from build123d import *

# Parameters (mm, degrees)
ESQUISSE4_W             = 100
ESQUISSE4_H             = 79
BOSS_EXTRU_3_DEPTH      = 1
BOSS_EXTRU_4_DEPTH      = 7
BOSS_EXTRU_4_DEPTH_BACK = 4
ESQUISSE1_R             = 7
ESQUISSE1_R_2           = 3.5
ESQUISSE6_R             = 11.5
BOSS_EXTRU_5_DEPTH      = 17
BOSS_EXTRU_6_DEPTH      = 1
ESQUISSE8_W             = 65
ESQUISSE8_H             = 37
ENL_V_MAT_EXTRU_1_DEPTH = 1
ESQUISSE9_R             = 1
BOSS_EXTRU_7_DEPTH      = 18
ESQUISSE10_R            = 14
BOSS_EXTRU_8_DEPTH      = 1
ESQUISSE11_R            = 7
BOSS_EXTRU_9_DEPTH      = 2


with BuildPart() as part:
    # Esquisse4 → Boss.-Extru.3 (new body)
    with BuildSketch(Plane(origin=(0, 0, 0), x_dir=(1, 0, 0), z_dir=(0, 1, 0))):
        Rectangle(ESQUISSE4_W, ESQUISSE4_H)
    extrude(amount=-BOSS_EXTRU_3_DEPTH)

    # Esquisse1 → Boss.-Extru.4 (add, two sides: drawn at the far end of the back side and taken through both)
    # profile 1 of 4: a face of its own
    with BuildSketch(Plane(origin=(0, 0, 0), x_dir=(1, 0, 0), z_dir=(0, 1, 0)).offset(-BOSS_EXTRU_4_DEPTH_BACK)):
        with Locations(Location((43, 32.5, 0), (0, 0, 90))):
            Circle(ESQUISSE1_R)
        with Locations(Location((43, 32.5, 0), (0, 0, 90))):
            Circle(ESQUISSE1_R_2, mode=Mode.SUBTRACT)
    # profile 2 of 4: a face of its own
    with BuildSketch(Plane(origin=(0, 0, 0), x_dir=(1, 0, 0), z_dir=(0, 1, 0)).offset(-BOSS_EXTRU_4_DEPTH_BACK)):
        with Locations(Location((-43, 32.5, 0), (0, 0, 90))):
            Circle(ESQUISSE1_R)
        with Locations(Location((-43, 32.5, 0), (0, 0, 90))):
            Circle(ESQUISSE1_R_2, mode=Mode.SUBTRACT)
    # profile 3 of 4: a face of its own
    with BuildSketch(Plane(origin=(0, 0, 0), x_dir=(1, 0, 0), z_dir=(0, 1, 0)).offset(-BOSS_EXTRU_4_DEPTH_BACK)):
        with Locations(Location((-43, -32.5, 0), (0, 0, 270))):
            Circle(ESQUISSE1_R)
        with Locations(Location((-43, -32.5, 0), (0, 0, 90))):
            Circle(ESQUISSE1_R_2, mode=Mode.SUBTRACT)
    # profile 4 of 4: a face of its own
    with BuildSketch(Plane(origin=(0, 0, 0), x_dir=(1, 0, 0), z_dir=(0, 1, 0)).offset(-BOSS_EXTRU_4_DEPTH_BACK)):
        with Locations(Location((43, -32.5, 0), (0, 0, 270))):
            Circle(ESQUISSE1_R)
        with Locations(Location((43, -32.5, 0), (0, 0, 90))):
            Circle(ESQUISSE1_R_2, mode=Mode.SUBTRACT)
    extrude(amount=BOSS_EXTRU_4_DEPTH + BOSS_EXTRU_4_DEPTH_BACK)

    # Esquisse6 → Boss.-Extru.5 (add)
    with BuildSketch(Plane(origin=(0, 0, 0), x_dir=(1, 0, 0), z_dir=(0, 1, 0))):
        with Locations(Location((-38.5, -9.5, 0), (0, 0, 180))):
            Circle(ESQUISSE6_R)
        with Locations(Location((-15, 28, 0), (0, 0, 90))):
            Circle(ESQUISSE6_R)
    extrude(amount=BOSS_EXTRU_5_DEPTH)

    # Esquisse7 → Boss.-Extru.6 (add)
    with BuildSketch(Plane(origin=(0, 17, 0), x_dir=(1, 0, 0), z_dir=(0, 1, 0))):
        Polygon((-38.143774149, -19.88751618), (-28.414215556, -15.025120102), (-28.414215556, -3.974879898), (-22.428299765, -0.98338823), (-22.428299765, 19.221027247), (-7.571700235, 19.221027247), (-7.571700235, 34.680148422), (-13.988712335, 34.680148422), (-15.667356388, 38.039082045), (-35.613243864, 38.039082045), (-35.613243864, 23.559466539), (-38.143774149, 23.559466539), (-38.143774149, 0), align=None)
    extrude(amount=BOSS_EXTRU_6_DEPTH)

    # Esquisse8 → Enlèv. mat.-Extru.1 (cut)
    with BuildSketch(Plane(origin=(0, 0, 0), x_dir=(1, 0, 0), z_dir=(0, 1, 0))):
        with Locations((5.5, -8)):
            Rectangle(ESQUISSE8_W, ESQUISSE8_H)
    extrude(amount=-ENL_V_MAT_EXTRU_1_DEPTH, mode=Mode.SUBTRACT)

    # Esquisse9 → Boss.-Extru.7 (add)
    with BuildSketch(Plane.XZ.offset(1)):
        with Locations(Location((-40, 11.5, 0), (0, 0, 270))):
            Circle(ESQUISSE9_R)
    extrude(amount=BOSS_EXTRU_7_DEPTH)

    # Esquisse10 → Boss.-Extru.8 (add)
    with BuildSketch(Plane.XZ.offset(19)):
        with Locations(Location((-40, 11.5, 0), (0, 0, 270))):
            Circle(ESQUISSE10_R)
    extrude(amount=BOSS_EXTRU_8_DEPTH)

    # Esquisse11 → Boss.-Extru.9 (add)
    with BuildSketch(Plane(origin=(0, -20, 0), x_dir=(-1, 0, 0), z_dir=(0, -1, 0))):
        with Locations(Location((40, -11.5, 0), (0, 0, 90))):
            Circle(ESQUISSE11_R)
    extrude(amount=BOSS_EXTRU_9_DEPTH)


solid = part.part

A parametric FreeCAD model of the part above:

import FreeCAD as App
import Part
import Sketcher
from FreeCAD import Vector


def add_polygon(sketch, points):
    """Adds a closed chain of lines whose ends are joined by coincident constraints."""
    first, n = sketch.GeometryCount, len(points)
    for a, b in zip(points, points[1:] + points[:1]):
        sketch.addGeometry(Part.LineSegment(App.Vector(*a, 0), App.Vector(*b, 0)), False)
    for i in range(n):
        sketch.addConstraint(Sketcher.Constraint("Coincident", first + i, 2, first + (i + 1) % n, 1))

doc = App.newDocument("Part")
body = doc.addObject("PartDesign::Body", "Body")

sketch1 = body.newObject("Sketcher::SketchObject", "Sketch")
sketch1.AttachmentSupport = (doc.getObject("XZ_Plane"), [""])
sketch1.MapMode = "FlatFace"
add_polygon(sketch1, [(-50, -40), (-50, 40), (50, 40), (50, -40)])
sketch1.addConstraint(Sketcher.Constraint("Vertical", 0))
sketch1.addConstraint(Sketcher.Constraint("Horizontal", 1))
sketch1.addConstraint(Sketcher.Constraint("Vertical", 2))
sketch1.addConstraint(Sketcher.Constraint("Horizontal", 3))
sketch1.addConstraint(Sketcher.Constraint("Symmetric", 0, 2, 2, 2, -1, 1))
sketch1.addConstraint(Sketcher.Constraint("DistanceX", 1, 1, 1, 2, 100.0))
sketch1.addConstraint(Sketcher.Constraint("DistanceY", 0, 1, 0, 2, 79.0))
pad1 = body.newObject("PartDesign::Pad", "Pad")
pad1.Profile = sketch1
pad1.Length = 1

sketch2 = body.newObject("Sketcher::SketchObject", "Sketch001")
sketch2.AttachmentSupport = (doc.getObject("XZ_Plane"), [""])
sketch2.MapMode = "FlatFace"
sketch2.addGeometry(Part.Circle(Vector(43, -32.5, 0), Vector(0, 0, 1), 7), False)
sketch2.addGeometry(Part.Circle(Vector(43, -32.5, 0), Vector(0, 0, 1), 3.5), False)
sketch2.addGeometry(Part.Circle(Vector(-43, -32.5, 0), Vector(0, 0, 1), 7), False)
sketch2.addGeometry(Part.Circle(Vector(-43, -32.5, 0), Vector(0, 0, 1), 3.5), False)
sketch2.addGeometry(Part.Circle(Vector(-43, 32.5, 0), Vector(0, 0, 1), 7), False)
sketch2.addGeometry(Part.Circle(Vector(-43, 32.5, 0), Vector(0, 0, 1), 3.5), False)
sketch2.addGeometry(Part.Circle(Vector(43, 32.5, 0), Vector(0, 0, 1), 7), False)
sketch2.addGeometry(Part.Circle(Vector(43, 32.5, 0), Vector(0, 0, 1), 3.5), False)
sketch2.addConstraint(Sketcher.Constraint("Coincident", 1, 3, 0, 3))
sketch2.addConstraint(Sketcher.Constraint("Coincident", 3, 3, 2, 3))
sketch2.addConstraint(Sketcher.Constraint("Coincident", 5, 3, 4, 3))
sketch2.addConstraint(Sketcher.Constraint("Coincident", 7, 3, 6, 3))
sketch2.addConstraint(Sketcher.Constraint("Equal", 0, 2))
sketch2.addConstraint(Sketcher.Constraint("Equal", 1, 3))
sketch2.addConstraint(Sketcher.Constraint("Equal", 2, 4))
sketch2.addConstraint(Sketcher.Constraint("Equal", 3, 5))
sketch2.addConstraint(Sketcher.Constraint("Equal", 4, 6))
sketch2.addConstraint(Sketcher.Constraint("Equal", 5, 7))
sketch2.addConstraint(Sketcher.Constraint("Symmetric", 0, 3, 4, 3, -1, 1))
sketch2.addConstraint(Sketcher.Constraint("Symmetric", 2, 3, 6, 3, -1, 1))
sketch2.addConstraint(Sketcher.Constraint("Symmetric", 0, 3, 2, 3, -2))
sketch2.addConstraint(Sketcher.Constraint("Diameter", 0, 14.0))
sketch2.addConstraint(Sketcher.Constraint("Diameter", 1, 7.0))
sketch2.addConstraint(Sketcher.Constraint("DistanceX", -1, 1, 0, 3, 43.0))
sketch2.addConstraint(Sketcher.Constraint("DistanceY", 2, 3, 4, 3, 65.0))
pad2 = body.newObject("PartDesign::Pad", "Pad001")
pad2.Profile = sketch2
pad2.Type = "TwoLengths"
pad2.Length = 7
pad2.Length2 = 4
pad2.Reversed = True

sketch3 = body.newObject("Sketcher::SketchObject", "Sketch002")
sketch3.AttachmentSupport = (doc.getObject("XZ_Plane"), [""])
sketch3.MapMode = "FlatFace"
sketch3.addGeometry(Part.Circle(Vector(-38, 10, 0), Vector(0, 0, 1), 12), False)
sketch3.addGeometry(Part.Circle(Vector(-15, -28, 0), Vector(0, 0, 1), 12), False)
sketch3.addConstraint(Sketcher.Constraint("Equal", 0, 1))
sketch3.addConstraint(Sketcher.Constraint("Diameter", 0, 23.0))
sketch3.addConstraint(Sketcher.Constraint("DistanceX", 1, 3, -1, 1, 15.0))
sketch3.addConstraint(Sketcher.Constraint("DistanceY", 1, 3, -1, 1, 28.0))
sketch3.addConstraint(Sketcher.Constraint("DistanceX", 0, 3, -1, 1, 38.5))
sketch3.addConstraint(Sketcher.Constraint("DistanceY", -1, 1, 0, 3, 9.5))
pad3 = body.newObject("PartDesign::Pad", "Pad002")
pad3.Profile = sketch3
pad3.Length = 17
pad3.Reversed = True

sketch4 = body.newObject("Sketcher::SketchObject", "Sketch003")
sketch4.AttachmentSupport = (doc.getObject("XZ_Plane"), [""])
sketch4.MapMode = "FlatFace"
sketch4.AttachmentOffset = App.Placement(Vector(0, 0, -17), App.Rotation())
add_polygon(sketch4, [(-38.1, 19.9), (-28.4, 15), (-28.4, 4), (-22.4, 1), (-22.4, -19.2), (-7.6, -19.2), (-7.6, -34.7), (-14, -34.7), (-15.7, -38), (-35.6, -38), (-35.6, -23.6), (-38.1, -23.6)])
sketch4.addConstraint(Sketcher.Constraint("Vertical", 1))
sketch4.addConstraint(Sketcher.Constraint("Vertical", 3))
sketch4.addConstraint(Sketcher.Constraint("Horizontal", 4))
sketch4.addConstraint(Sketcher.Constraint("Vertical", 5))
sketch4.addConstraint(Sketcher.Constraint("Horizontal", 6))
sketch4.addConstraint(Sketcher.Constraint("Horizontal", 8))
sketch4.addConstraint(Sketcher.Constraint("Vertical", 9))
sketch4.addConstraint(Sketcher.Constraint("Horizontal", 10))
sketch4.addConstraint(Sketcher.Constraint("Vertical", 11))
sketch4.addConstraint(Sketcher.Constraint("Parallel", 0, 2))
sketch4.addConstraint(Sketcher.Constraint("Perpendicular", 2, 7))
sketch4.addConstraint(Sketcher.Constraint("DistanceX", 4, 1, 4, 2, 14.8566))
sketch4.addConstraint(Sketcher.Constraint("Distance", 2, 6.691802))
sketch4.addConstraint(Sketcher.Constraint("DistanceX", 10, 2, 10, 1, 2.53053))
sketch4.addConstraint(Sketcher.Constraint("DistanceY", 1, 2, 1, 1, 11.05024))
sketch4.addConstraint(Sketcher.Constraint("DistanceY", 5, 2, 5, 1, 15.459121))
sketch4.addConstraint(Sketcher.Constraint("DistanceX", 2, 2, -1, 1, 22.4283))
sketch4.addConstraint(Sketcher.Constraint("Distance", 0, 10.876912))
sketch4.addConstraint(Sketcher.Constraint("DistanceX", 6, 2, 6, 1, 6.417012))
sketch4.addConstraint(Sketcher.Constraint("DistanceX", 8, 2, 8, 1, 19.945887))
sketch4.addConstraint(Sketcher.Constraint("DistanceY", 3, 2, 3, 1, 20.204415))
sketch4.addConstraint(Sketcher.Constraint("DistanceY", 9, 1, 9, 2, 14.479616))
sketch4.addConstraint(Sketcher.Constraint("DistanceY", 11, 1, 11, 2, 43.446983))
sketch4.addConstraint(Sketcher.Constraint("DistanceY", -1, 1, 0, 2, 15.02512))
pad4 = body.newObject("PartDesign::Pad", "Pad003")
pad4.Profile = sketch4
pad4.Length = 1
pad4.Reversed = True

sketch5 = body.newObject("Sketcher::SketchObject", "Sketch004")
sketch5.AttachmentSupport = (doc.getObject("XZ_Plane"), [""])
sketch5.MapMode = "FlatFace"
add_polygon(sketch5, [(-27, -10), (-27, 26), (38, 26), (38, -10)])
sketch5.addConstraint(Sketcher.Constraint("Vertical", 0))
sketch5.addConstraint(Sketcher.Constraint("Horizontal", 1))
sketch5.addConstraint(Sketcher.Constraint("Vertical", 2))
sketch5.addConstraint(Sketcher.Constraint("Horizontal", 3))
sketch5.addConstraint(Sketcher.Constraint("DistanceX", 1, 1, 1, 2, 65.0))
sketch5.addConstraint(Sketcher.Constraint("DistanceY", 0, 1, 0, 2, 37.0))
sketch5.addConstraint(Sketcher.Constraint("DistanceX", 0, 2, -1, 1, 27.0))
sketch5.addConstraint(Sketcher.Constraint("DistanceY", -1, 1, 0, 2, 26.5))
pocket1 = body.newObject("PartDesign::Pocket", "Pocket")
pocket1.Profile = sketch5
pocket1.Length = 1
pocket1.Reversed = True

sketch6 = body.newObject("Sketcher::SketchObject", "Sketch005")
sketch6.AttachmentSupport = (doc.getObject("XZ_Plane"), [""])
sketch6.MapMode = "FlatFace"
sketch6.AttachmentOffset = App.Placement(Vector(0, 0, 1), App.Rotation())
sketch6.addGeometry(Part.Circle(Vector(-40, 11.5, 0), Vector(0, 0, 1), 1), False)
sketch6.addConstraint(Sketcher.Constraint("Diameter", 0, 2.0))
sketch6.addConstraint(Sketcher.Constraint("DistanceX", 0, 3, -1, 1, 40.0))
sketch6.addConstraint(Sketcher.Constraint("DistanceY", -1, 1, 0, 3, 11.5))
pad5 = body.newObject("PartDesign::Pad", "Pad004")
pad5.Profile = sketch6
pad5.Length = 18

sketch7 = body.newObject("Sketcher::SketchObject", "Sketch006")
sketch7.AttachmentSupport = (doc.getObject("XZ_Plane"), [""])
sketch7.MapMode = "FlatFace"
sketch7.AttachmentOffset = App.Placement(Vector(0, 0, 19), App.Rotation())
sketch7.addGeometry(Part.Circle(Vector(-40, 12, 0), Vector(0, 0, 1), 14), False)
sketch7.addConstraint(Sketcher.Constraint("Diameter", 0, 28.0))
sketch7.addConstraint(Sketcher.Constraint("DistanceX", 0, 3, -1, 1, 40.0))
sketch7.addConstraint(Sketcher.Constraint("DistanceY", -1, 1, 0, 3, 11.5))
pad6 = body.newObject("PartDesign::Pad", "Pad005")
pad6.Profile = sketch7
pad6.Length = 1

sketch8 = body.newObject("Sketcher::SketchObject", "Sketch007")
sketch8.AttachmentSupport = (doc.getObject("XZ_Plane"), [""])
sketch8.MapMode = "FlatFace"
sketch8.AttachmentOffset = App.Placement(Vector(0, 0, 20), App.Rotation())
sketch8.addGeometry(Part.Circle(Vector(-40, 12, 0), Vector(0, 0, 1), 7), False)
sketch8.addConstraint(Sketcher.Constraint("Diameter", 0, 14.0))
sketch8.addConstraint(Sketcher.Constraint("DistanceX", 0, 3, -1, 1, 40.0))
sketch8.addConstraint(Sketcher.Constraint("DistanceY", -1, 1, 0, 3, 11.5))
pad7 = body.newObject("PartDesign::Pad", "Pad006")
pad7.Profile = sketch8
pad7.Length = 2

doc.recompute()
